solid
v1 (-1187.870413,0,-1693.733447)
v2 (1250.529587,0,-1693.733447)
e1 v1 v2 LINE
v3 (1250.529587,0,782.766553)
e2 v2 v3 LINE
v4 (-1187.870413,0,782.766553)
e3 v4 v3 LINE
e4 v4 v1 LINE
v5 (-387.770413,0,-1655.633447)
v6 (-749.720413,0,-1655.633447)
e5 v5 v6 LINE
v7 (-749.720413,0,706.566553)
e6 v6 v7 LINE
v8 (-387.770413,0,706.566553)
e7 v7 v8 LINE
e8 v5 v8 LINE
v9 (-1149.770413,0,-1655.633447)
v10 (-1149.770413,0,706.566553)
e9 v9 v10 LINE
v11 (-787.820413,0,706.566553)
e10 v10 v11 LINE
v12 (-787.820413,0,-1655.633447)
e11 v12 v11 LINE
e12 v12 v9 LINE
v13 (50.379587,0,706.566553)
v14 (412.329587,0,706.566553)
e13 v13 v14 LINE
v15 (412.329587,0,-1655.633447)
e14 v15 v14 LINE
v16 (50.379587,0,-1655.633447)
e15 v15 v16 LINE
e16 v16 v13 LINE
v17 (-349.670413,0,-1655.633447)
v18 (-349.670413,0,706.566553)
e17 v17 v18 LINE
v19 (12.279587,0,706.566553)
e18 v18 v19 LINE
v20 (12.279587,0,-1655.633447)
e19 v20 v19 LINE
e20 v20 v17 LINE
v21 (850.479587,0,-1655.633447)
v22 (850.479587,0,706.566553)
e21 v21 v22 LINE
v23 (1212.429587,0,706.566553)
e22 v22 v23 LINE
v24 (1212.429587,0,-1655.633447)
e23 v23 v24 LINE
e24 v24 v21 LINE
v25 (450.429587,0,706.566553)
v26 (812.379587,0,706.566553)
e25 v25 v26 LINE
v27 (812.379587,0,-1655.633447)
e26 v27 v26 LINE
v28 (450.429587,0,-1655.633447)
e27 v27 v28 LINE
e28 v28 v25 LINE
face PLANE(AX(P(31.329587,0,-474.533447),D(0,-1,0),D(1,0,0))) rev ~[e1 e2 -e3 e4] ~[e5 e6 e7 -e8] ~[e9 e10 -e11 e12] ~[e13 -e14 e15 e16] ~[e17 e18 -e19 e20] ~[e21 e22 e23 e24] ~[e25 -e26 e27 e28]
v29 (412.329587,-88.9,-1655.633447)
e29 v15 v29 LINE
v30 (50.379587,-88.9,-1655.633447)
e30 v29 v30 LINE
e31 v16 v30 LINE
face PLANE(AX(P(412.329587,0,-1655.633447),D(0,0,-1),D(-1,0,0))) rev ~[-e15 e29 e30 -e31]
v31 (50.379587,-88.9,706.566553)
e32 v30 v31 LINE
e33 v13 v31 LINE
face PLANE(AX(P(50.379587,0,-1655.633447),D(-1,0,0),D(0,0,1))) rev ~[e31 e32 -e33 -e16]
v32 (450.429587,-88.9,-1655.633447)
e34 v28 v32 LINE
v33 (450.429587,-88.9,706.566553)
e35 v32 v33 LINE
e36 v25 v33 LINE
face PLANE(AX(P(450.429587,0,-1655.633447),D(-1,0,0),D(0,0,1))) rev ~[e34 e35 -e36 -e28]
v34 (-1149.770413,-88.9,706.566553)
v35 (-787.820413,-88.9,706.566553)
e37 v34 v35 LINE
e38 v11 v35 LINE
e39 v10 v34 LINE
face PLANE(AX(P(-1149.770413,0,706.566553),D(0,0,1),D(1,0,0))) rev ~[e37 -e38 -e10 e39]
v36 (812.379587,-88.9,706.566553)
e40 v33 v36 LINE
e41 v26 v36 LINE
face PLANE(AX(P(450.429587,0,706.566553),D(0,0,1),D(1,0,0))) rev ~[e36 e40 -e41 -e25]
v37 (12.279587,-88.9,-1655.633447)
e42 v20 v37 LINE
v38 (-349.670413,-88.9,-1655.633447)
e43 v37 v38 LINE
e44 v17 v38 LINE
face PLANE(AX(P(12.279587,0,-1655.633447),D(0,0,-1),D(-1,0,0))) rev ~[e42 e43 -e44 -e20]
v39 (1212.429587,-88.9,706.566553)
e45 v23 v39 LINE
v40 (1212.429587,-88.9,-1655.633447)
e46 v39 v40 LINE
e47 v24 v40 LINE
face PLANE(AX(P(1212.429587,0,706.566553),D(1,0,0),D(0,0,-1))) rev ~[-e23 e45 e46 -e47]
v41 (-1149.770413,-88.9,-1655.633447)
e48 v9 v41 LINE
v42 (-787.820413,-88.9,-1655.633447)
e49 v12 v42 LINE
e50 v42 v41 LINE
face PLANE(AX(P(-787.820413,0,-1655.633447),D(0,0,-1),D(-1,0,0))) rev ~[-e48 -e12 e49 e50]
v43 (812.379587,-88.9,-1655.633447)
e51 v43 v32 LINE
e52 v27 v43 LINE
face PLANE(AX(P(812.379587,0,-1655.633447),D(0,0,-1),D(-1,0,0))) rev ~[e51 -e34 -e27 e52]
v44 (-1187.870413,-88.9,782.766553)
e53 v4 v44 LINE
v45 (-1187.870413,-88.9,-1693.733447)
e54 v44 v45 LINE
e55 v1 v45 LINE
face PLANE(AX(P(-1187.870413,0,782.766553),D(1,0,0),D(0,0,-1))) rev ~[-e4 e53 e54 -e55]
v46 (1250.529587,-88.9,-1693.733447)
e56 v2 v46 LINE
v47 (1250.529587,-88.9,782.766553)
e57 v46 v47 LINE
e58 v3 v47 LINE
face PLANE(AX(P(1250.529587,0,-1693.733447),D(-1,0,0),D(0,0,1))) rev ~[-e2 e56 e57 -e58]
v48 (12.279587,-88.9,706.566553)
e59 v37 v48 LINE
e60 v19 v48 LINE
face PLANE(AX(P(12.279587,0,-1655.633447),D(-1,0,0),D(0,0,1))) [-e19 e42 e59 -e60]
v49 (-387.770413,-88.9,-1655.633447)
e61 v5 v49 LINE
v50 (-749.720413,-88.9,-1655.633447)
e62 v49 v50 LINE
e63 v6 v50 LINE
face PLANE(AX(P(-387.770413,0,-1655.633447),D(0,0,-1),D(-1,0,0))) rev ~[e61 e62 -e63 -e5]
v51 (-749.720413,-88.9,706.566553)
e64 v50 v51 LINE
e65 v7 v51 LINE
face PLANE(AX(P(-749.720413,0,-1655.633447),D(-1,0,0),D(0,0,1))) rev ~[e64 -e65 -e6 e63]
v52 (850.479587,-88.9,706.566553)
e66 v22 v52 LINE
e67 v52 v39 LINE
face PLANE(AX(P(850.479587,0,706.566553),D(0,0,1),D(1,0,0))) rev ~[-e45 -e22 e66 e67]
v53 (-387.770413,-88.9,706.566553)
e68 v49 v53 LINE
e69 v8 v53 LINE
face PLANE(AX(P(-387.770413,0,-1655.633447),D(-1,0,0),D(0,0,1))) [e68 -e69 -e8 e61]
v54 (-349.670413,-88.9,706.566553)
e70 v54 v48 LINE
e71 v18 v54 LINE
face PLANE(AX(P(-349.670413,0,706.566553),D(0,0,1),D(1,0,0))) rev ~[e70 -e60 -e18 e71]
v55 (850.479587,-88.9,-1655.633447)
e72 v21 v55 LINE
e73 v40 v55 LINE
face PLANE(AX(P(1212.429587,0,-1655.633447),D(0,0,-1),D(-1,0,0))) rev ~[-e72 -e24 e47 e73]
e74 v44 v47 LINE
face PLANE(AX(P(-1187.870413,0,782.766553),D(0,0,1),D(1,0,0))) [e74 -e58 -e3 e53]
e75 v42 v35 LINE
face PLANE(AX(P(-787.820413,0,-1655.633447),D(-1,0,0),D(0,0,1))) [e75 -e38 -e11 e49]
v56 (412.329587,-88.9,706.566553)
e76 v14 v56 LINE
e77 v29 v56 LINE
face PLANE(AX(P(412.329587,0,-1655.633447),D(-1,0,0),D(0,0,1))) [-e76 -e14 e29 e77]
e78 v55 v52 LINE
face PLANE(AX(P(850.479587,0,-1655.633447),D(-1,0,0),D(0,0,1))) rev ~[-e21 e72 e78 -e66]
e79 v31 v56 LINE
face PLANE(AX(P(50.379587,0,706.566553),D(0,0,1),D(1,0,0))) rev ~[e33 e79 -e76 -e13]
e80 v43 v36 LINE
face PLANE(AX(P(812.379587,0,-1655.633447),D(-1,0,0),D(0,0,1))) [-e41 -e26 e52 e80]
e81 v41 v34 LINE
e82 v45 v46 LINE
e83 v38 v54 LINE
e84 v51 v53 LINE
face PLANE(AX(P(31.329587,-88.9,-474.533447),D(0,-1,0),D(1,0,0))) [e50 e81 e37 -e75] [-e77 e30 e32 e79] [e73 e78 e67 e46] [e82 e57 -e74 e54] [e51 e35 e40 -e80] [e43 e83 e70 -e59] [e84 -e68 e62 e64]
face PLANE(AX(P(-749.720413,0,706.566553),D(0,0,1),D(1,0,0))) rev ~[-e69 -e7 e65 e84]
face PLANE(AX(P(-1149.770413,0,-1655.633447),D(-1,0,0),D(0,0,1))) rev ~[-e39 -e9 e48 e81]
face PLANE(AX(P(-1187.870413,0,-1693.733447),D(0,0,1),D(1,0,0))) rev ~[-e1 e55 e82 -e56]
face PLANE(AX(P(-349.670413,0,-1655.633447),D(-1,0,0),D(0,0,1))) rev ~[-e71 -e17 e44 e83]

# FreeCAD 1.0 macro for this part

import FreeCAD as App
import Part
import Sketcher
from FreeCAD import Vector
Q = App.Units.Quantity


def add_polygon(sketch, points):
    """Adds a closed chain of lines whose ends are joined by coincident constraints."""
    first, n = sketch.GeometryCount, len(points)
    for a, b in zip(points, points[1:] + points[:1]):
        sketch.addGeometry(Part.LineSegment(App.Vector(*a, 0), App.Vector(*b, 0)), False)
    for i in range(n):
        sketch.addConstraint(Sketcher.Constraint("Coincident", first + i, 2, first + (i + 1) % n, 1))

doc = App.newDocument("Part")
body = doc.addObject("PartDesign::Body", "Body")

sketch1 = body.newObject("Sketcher::SketchObject", "Sketch")
sketch1.AttachmentSupport = (doc.getObject("XZ_Plane"), [""])
sketch1.MapMode = "FlatFace"
add_polygon(sketch1, [(-1188, -1694), (1251, -1694), (1251, 783), (-1188, 783)])
add_polygon(sketch1, [(1212, -1656), (850, -1656), (850, 707), (1212, 707)])
add_polygon(sketch1, [(812, -1656), (450, -1656), (450, 707), (812, 707)])
add_polygon(sketch1, [(412, -1656), (50, -1656), (50, 707), (412, 707)])
add_polygon(sketch1, [(12, -1656), (-350, -1656), (-350, 707), (12, 707)])
add_polygon(sketch1, [(-388, -1656), (-750, -1656), (-750, 707), (-388, 707)])
add_polygon(sketch1, [(-788, -1656), (-1150, -1656), (-1150, 707), (-788, 707)])
sketch1.addConstraint(Sketcher.Constraint("Horizontal", 0))
sketch1.addConstraint(Sketcher.Constraint("Vertical", 1))
sketch1.addConstraint(Sketcher.Constraint("Horizontal", 2))
sketch1.addConstraint(Sketcher.Constraint("Vertical", 3))
sketch1.addConstraint(Sketcher.Constraint("Horizontal", 4))
sketch1.addConstraint(Sketcher.Constraint("Vertical", 5))
sketch1.addConstraint(Sketcher.Constraint("Horizontal", 6))
sketch1.addConstraint(Sketcher.Constraint("Vertical", 7))
sketch1.addConstraint(Sketcher.Constraint("Horizontal", 8))
sketch1.addConstraint(Sketcher.Constraint("Vertical", 9))
sketch1.addConstraint(Sketcher.Constraint("Horizontal", 10))
sketch1.addConstraint(Sketcher.Constraint("Vertical", 11))
sketch1.addConstraint(Sketcher.Constraint("Horizontal", 12))
sketch1.addConstraint(Sketcher.Constraint("Vertical", 13))
sketch1.addConstraint(Sketcher.Constraint("Horizontal", 14))
sketch1.addConstraint(Sketcher.Constraint("Vertical", 15))
sketch1.addConstraint(Sketcher.Constraint("Horizontal", 16))
sketch1.addConstraint(Sketcher.Constraint("Vertical", 17))
sketch1.addConstraint(Sketcher.Constraint("Horizontal", 18))
sketch1.addConstraint(Sketcher.Constraint("Vertical", 19))
sketch1.addConstraint(Sketcher.Constraint("Horizontal", 20))
sketch1.addConstraint(Sketcher.Constraint("Vertical", 21))
sketch1.addConstraint(Sketcher.Constraint("Horizontal", 22))
sketch1.addConstraint(Sketcher.Constraint("Vertical", 23))
sketch1.addConstraint(Sketcher.Constraint("Horizontal", 24))
sketch1.addConstraint(Sketcher.Constraint("Vertical", 25))
sketch1.addConstraint(Sketcher.Constraint("Horizontal", 26))
sketch1.addConstraint(Sketcher.Constraint("Vertical", 27))
sketch1.addConstraint(Sketcher.Constraint("Horizontal", 7, 2, 8, 2))
sketch1.addConstraint(Sketcher.Constraint("Horizontal", 6, 2, 9, 2))
sketch1.addConstraint(Sketcher.Constraint("Horizontal", 11, 2, 12, 2))
sketch1.addConstraint(Sketcher.Constraint("Horizontal", 10, 2, 13, 2))
sketch1.addConstraint(Sketcher.Constraint("Horizontal", 15, 2, 16, 2))
sketch1.addConstraint(Sketcher.Constraint("Horizontal", 14, 2, 17, 2))
sketch1.addConstraint(Sketcher.Constraint("Horizontal", 19, 2, 20, 2))
sketch1.addConstraint(Sketcher.Constraint("Horizontal", 18, 2, 21, 2))
sketch1.addConstraint(Sketcher.Constraint("Horizontal", 23, 2, 24, 2))
sketch1.addConstraint(Sketcher.Constraint("Horizontal", 22, 2, 25, 2))
sketch1.addConstraint(Sketcher.Constraint("Equal", 6, 8))
sketch1.addConstraint(Sketcher.Constraint("Equal", 10, 12))
sketch1.addConstraint(Sketcher.Constraint("Equal", 14, 16))
sketch1.addConstraint(Sketcher.Constraint("Equal", 18, 20))
sketch1.addConstraint(Sketcher.Constraint("Equal", 22, 24))
sketch1.addConstraint(Sketcher.Constraint("DistanceX", 0, 1, 0, 2, Q("96 in")))
sketch1.addConstraint(Sketcher.Constraint("DistanceY", 5, 1, 5, 2, Q("93 in")))
sketch1.addConstraint(Sketcher.Constraint("DistanceY", 1, 1, 1, 2, Q("97.5 in")))
sketch1.addConstraint(Sketcher.Constraint("DistanceY", 4, 2, 1, 2, Q("96 in")))
sketch1.addConstraint(Sketcher.Constraint("DistanceX", 8, 2, 7, 2, Q("30 in")))
sketch1.addConstraint(Sketcher.Constraint("DistanceX", 12, 2, 11, 2, Q("30 in")))
sketch1.addConstraint(Sketcher.Constraint("DistanceX", 16, 2, 15, 2, Q("30 in")))
sketch1.addConstraint(Sketcher.Constraint("DistanceX", 3, 2, 16, 2, Q("33 in")))
sketch1.addConstraint(Sketcher.Constraint("DistanceX", 20, 2, 19, 2, Q("30 in")))
sketch1.addConstraint(Sketcher.Constraint("DistanceX", 24, 2, 23, 2, Q("30 in")))
sketch1.addConstraint(Sketcher.Constraint("DistanceX", 4, 2, 4, 1, Q("14.25 in")))
sketch1.addConstraint(Sketcher.Constraint("DistanceX", -1, 1, 0, 2, 1250.529587))
sketch1.addConstraint(Sketcher.Constraint("DistanceY", 0, 2, -1, 1, 1693.733447))
pad1 = body.newObject("PartDesign::Pad", "Pad")
pad1.Profile = sketch1
pad1.Length = Q("3.5 in")

doc.recompute()
